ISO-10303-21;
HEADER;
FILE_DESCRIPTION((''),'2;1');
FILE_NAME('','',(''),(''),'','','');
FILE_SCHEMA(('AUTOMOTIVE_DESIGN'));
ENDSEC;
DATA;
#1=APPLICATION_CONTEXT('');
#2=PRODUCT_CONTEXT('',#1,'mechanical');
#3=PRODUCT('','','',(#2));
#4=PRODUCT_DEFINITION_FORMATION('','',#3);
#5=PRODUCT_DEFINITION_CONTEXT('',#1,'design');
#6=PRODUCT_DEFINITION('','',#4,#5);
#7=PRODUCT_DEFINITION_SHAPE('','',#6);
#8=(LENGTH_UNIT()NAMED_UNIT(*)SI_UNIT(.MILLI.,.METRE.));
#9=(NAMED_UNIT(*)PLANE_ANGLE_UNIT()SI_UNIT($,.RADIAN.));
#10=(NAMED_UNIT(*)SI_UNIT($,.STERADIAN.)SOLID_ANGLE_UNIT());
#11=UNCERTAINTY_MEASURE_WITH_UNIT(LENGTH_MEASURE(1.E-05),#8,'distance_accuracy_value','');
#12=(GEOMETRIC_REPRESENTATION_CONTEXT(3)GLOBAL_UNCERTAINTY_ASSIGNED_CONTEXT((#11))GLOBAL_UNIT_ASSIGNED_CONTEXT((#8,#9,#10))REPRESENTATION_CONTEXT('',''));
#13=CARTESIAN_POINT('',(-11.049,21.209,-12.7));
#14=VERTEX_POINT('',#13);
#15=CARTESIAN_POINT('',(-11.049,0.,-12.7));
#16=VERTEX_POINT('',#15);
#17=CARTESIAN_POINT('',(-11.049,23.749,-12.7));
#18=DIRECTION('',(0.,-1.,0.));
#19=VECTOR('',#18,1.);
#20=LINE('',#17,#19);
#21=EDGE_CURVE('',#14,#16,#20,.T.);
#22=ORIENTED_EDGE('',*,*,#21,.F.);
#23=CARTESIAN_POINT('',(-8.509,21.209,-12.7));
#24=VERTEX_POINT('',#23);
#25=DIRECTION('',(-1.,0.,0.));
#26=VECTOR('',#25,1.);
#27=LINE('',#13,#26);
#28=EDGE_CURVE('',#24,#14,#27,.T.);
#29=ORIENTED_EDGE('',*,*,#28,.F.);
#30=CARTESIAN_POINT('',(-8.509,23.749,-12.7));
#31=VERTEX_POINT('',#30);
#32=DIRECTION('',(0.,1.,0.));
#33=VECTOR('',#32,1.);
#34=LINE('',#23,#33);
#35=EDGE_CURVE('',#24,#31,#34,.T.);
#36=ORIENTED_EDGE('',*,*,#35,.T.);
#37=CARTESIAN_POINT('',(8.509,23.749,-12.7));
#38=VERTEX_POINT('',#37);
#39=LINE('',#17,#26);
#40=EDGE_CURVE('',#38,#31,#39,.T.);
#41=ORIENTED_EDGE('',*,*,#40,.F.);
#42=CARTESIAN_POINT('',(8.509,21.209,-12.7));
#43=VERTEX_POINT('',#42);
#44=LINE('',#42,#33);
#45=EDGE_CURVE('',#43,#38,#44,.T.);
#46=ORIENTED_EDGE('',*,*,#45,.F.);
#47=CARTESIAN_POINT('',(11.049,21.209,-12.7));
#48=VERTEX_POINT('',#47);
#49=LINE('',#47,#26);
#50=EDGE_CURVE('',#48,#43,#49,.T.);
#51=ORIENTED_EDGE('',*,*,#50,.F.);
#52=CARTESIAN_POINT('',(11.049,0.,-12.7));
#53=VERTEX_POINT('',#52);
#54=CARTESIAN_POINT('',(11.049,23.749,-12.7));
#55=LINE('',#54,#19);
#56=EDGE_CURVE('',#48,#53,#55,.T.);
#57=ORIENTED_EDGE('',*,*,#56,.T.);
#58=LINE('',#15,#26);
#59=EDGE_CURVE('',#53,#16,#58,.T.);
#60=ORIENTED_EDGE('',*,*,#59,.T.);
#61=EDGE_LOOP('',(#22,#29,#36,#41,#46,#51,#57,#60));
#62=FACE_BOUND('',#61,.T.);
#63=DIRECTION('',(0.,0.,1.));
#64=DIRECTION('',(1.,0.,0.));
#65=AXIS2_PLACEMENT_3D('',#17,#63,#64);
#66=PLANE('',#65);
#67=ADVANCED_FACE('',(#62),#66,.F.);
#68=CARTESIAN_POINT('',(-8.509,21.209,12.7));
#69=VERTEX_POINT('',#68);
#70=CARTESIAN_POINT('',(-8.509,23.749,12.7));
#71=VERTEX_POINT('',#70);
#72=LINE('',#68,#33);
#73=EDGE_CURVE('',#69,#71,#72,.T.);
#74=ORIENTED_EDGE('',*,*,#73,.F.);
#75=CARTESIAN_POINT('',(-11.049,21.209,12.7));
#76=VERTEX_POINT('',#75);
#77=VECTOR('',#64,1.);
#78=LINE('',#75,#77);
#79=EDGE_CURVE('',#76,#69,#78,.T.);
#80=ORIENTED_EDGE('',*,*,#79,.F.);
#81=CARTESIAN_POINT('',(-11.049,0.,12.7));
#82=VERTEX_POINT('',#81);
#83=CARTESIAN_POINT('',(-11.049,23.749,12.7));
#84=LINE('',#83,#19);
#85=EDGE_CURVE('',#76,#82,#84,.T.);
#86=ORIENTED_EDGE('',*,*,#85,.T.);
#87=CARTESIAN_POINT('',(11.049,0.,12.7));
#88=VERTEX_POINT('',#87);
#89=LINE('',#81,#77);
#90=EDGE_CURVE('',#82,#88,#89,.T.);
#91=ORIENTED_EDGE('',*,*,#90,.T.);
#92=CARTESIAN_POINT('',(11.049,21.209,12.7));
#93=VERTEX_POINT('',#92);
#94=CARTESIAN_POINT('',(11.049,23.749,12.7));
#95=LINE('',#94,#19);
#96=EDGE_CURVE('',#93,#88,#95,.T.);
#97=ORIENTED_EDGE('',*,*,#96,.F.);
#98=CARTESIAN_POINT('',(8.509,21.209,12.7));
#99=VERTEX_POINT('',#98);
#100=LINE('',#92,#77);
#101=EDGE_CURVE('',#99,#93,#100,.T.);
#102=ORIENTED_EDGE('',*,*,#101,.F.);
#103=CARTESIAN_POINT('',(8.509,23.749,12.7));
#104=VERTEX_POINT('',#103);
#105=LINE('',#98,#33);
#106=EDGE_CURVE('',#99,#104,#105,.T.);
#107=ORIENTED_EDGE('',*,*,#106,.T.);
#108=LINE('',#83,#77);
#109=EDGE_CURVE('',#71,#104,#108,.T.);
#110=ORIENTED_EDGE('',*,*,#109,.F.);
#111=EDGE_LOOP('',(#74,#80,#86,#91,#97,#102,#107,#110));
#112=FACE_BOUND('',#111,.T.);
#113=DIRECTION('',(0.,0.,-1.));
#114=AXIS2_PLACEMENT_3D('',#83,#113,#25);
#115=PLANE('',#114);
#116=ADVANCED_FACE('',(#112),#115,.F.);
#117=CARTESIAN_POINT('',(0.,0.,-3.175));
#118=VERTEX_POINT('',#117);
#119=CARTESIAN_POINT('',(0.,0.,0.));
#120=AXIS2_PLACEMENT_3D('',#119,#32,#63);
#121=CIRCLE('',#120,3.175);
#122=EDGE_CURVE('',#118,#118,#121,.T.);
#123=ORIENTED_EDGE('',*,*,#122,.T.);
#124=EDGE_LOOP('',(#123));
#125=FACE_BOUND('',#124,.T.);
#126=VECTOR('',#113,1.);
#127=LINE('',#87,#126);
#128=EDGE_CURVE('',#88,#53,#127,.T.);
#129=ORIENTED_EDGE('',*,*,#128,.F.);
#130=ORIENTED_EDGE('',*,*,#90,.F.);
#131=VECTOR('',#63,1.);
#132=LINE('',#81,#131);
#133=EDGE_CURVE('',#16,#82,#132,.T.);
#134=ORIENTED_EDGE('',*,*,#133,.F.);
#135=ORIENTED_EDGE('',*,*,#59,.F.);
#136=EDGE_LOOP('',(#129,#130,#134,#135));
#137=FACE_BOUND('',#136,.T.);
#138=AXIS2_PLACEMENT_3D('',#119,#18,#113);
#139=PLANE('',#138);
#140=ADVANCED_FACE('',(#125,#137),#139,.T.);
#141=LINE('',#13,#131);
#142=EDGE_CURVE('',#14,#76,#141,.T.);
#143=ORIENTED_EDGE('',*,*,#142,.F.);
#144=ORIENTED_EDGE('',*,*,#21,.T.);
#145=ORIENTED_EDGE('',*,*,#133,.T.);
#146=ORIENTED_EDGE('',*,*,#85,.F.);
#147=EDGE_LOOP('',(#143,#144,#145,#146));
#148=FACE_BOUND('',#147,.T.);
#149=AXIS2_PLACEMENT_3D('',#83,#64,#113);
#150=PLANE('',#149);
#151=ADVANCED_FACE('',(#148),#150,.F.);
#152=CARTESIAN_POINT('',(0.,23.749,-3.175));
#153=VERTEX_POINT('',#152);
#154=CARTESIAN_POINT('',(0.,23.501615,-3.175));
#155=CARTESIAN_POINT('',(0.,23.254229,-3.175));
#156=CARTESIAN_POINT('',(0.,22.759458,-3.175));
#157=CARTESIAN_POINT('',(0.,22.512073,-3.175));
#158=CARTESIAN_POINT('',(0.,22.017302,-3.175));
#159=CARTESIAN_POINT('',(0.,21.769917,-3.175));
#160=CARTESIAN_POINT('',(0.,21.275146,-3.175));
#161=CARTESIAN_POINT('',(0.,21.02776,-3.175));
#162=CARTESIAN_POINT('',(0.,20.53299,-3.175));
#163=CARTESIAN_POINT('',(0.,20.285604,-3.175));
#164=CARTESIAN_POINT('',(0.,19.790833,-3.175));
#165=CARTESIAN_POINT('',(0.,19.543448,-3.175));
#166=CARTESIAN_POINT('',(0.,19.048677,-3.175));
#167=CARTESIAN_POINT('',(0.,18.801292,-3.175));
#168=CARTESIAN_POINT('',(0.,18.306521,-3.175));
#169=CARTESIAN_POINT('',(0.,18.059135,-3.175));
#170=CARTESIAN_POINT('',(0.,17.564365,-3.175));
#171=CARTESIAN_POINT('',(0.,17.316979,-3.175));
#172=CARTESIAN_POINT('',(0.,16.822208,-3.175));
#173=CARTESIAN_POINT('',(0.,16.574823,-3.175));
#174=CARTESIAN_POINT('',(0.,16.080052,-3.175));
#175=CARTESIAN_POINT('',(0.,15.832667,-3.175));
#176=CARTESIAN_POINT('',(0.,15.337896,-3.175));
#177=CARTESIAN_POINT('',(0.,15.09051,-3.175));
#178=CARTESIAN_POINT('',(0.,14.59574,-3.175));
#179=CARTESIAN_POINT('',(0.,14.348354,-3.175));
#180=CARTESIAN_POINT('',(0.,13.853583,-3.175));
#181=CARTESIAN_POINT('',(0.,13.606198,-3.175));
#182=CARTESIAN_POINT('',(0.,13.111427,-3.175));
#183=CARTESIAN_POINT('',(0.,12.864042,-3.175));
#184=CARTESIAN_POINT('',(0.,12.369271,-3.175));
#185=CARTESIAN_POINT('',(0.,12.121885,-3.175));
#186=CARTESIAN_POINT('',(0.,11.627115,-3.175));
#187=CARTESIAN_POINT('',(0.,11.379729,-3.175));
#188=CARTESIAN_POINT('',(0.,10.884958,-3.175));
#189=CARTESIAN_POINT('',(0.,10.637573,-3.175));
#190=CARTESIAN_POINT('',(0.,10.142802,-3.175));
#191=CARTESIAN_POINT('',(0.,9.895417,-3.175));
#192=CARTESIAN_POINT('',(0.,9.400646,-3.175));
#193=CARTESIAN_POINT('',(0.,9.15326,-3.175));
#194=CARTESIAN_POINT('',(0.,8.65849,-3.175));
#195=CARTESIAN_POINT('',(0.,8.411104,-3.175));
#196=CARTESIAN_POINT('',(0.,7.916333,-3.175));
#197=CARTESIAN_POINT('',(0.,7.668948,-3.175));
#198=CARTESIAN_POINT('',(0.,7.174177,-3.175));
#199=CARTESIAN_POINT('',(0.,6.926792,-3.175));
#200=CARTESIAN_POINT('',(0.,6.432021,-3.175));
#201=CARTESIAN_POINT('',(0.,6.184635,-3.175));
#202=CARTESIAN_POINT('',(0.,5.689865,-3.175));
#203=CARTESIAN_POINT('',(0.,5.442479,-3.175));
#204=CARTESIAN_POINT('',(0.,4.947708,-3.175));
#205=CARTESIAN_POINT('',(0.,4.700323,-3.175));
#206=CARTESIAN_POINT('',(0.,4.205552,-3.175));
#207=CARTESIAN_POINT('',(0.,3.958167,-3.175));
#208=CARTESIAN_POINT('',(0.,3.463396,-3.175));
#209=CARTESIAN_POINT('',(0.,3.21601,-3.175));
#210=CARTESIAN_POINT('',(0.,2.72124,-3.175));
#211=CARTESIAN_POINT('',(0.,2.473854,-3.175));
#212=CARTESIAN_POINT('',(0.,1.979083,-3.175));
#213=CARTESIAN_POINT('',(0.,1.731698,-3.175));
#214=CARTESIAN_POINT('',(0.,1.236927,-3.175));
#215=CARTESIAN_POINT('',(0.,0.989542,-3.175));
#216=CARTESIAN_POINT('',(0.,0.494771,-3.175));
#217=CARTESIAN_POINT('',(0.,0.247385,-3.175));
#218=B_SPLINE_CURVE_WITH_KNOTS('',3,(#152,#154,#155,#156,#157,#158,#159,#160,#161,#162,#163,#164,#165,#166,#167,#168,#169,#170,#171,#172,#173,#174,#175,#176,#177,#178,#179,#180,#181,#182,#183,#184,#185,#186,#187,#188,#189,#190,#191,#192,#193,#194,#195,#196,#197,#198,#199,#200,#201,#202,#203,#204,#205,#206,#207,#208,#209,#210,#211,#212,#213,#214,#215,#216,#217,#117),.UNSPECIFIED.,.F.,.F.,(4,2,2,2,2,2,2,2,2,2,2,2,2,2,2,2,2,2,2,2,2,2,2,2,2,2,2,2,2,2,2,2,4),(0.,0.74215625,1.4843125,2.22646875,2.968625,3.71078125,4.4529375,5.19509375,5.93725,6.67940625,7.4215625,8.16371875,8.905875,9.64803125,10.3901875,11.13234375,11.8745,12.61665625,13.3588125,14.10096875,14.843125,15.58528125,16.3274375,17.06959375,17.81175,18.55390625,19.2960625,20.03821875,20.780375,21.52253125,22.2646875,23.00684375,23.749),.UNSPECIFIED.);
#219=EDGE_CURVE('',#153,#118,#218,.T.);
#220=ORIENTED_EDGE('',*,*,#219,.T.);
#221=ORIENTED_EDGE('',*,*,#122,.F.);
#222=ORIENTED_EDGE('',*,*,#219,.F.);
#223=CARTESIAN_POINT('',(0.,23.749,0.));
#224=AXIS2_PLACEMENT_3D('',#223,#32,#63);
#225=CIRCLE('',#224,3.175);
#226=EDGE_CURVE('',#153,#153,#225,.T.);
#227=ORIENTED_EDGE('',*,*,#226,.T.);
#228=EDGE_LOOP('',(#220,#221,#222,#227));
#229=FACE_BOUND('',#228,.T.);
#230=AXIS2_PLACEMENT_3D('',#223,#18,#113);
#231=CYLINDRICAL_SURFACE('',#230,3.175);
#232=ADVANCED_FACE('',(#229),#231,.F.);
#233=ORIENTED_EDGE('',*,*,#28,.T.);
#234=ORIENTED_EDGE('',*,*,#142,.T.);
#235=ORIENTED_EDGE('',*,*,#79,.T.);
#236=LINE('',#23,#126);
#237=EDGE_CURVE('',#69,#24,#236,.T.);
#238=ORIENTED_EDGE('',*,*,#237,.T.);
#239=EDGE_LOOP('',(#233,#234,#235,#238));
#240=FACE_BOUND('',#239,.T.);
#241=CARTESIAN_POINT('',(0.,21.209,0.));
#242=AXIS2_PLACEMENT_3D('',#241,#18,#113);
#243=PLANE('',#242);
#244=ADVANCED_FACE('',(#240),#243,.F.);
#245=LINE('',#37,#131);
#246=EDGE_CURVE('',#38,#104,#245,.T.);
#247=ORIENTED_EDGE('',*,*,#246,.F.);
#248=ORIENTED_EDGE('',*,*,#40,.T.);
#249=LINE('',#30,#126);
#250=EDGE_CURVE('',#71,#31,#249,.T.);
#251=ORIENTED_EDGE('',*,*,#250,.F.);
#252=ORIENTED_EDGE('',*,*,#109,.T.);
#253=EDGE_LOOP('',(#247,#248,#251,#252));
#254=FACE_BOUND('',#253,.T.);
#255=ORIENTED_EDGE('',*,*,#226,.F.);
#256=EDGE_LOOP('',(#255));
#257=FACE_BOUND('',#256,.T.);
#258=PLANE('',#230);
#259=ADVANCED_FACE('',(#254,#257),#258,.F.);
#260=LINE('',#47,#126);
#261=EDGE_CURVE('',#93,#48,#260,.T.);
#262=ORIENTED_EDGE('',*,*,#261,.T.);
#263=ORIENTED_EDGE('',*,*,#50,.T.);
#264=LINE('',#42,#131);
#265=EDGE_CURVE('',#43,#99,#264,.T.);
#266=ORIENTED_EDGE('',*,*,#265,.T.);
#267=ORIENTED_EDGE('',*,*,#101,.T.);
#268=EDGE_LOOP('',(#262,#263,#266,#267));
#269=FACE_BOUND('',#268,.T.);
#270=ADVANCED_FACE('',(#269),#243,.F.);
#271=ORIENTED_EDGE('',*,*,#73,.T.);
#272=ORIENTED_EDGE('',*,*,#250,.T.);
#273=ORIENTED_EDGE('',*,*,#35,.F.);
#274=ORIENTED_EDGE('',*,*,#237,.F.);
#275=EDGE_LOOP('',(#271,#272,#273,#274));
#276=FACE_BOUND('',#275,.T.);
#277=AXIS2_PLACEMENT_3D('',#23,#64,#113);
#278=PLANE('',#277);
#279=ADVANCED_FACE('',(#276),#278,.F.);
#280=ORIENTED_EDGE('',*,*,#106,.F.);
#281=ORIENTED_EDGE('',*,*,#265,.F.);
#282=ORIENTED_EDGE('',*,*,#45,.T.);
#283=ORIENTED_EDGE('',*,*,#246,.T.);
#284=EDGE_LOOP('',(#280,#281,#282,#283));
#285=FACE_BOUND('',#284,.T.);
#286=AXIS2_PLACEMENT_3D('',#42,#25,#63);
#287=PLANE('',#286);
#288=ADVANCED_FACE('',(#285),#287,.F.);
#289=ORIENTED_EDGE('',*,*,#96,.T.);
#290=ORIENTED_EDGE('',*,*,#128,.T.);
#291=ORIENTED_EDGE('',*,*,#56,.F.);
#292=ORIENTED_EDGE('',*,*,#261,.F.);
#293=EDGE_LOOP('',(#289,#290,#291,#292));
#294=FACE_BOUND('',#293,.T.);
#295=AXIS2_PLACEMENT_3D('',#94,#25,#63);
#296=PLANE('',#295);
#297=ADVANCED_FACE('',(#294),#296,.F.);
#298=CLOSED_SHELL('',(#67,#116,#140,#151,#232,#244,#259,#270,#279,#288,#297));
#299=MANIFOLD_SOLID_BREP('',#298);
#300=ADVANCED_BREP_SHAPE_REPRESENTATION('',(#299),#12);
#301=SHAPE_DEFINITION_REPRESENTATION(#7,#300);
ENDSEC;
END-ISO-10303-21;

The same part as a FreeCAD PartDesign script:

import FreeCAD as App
import Part
import Sketcher
from FreeCAD import Vector
Q = App.Units.Quantity


def add_polygon(sketch, points):
    """Adds a closed chain of lines whose ends are joined by coincident constraints."""
    first, n = sketch.GeometryCount, len(points)
    for a, b in zip(points, points[1:] + points[:1]):
        sketch.addGeometry(Part.LineSegment(App.Vector(*a, 0), App.Vector(*b, 0)), False)
    for i in range(n):
        sketch.addConstraint(Sketcher.Constraint("Coincident", first + i, 2, first + (i + 1) % n, 1))

doc = App.newDocument("Part")
body = doc.addObject("PartDesign::Body", "Body")

sketch1 = body.newObject("Sketcher::SketchObject", "Sketch")
sketch1.AttachmentSupport = (doc.getObject("XZ_Plane"), [""])
sketch1.MapMode = "FlatFace"
add_polygon(sketch1, [(-11, -12.7), (-11, 12.7), (11, 12.7), (11, -12.7)])
sketch1.addGeometry(Part.Circle(Vector(0, 0, 0), Vector(0, 0, 1), 3.2), False)
sketch1.addConstraint(Sketcher.Constraint("Vertical", 0))
sketch1.addConstraint(Sketcher.Constraint("Horizontal", 1))
sketch1.addConstraint(Sketcher.Constraint("Vertical", 2))
sketch1.addConstraint(Sketcher.Constraint("Horizontal", 3))
sketch1.addConstraint(Sketcher.Constraint("Coincident", 4, 3, -1, 1))
sketch1.addConstraint(Sketcher.Constraint("Symmetric", 0, 2, 2, 2, -1, 1))
sketch1.addConstraint(Sketcher.Constraint("Diameter", 4, Q("0.25 in")))
sketch1.addConstraint(Sketcher.Constraint("DistanceY", 0, 1, 0, 2, Q("1 in")))
sketch1.addConstraint(Sketcher.Constraint("DistanceX", 1, 1, 1, 2, Q("0.87 in")))
pad1 = body.newObject("PartDesign::Pad", "Pad")
pad1.Profile = sketch1
pad1.Length = Q("0.935 in")
pad1.Reversed = True

sketch2 = body.newObject("Sketcher::SketchObject", "Sketch001")
sketch2.AttachmentSupport = (doc.getObject("XZ_Plane"), [""])
sketch2.MapMode = "FlatFace"
sketch2.AttachmentOffset = App.Placement(Vector(0, 0, -0.935 * 25.4), App.Rotation())
add_polygon(sketch2, [(8.5, -12.7), (8.5, 12.7), (11, 12.7), (11, -12.7)])
add_polygon(sketch2, [(-11, -12.7), (-11, 12.7), (-8.5, 12.7), (-8.5, -12.7)])
sketch2.addConstraint(Sketcher.Constraint("Vertical", 0))
sketch2.addConstraint(Sketcher.Constraint("Horizontal", 1))
sketch2.addConstraint(Sketcher.Constraint("Vertical", 2))
sketch2.addConstraint(Sketcher.Constraint("Horizontal", 3))
sketch2.addConstraint(Sketcher.Constraint("Vertical", 4))
sketch2.addConstraint(Sketcher.Constraint("Horizontal", 5))
sketch2.addConstraint(Sketcher.Constraint("Vertical", 6))
sketch2.addConstraint(Sketcher.Constraint("Horizontal", 7))
sketch2.addConstraint(Sketcher.Constraint("Symmetric", 2, 2, 4, 2, -1, 1))
sketch2.addConstraint(Sketcher.Constraint("Symmetric", 0, 2, 6, 2, -1, 1))
sketch2.addConstraint(Sketcher.Constraint("Horizontal", 1, 2, 4, 2))
sketch2.addConstraint(Sketcher.Constraint("DistanceY", 0, 1, 0, 2, Q("1 in")))
sketch2.addConstraint(Sketcher.Constraint("DistanceX", 1, 1, 1, 2, Q("0.1 in")))
sketch2.addConstraint(Sketcher.Constraint("DistanceX", 4, 2, 0, 2, Q("0.77 in")))
pocket1 = body.newObject("PartDesign::Pocket", "Pocket")
pocket1.Profile = sketch2
pocket1.Length = Q("0.1 in")
pocket1.Reversed = True

doc.recompute()
